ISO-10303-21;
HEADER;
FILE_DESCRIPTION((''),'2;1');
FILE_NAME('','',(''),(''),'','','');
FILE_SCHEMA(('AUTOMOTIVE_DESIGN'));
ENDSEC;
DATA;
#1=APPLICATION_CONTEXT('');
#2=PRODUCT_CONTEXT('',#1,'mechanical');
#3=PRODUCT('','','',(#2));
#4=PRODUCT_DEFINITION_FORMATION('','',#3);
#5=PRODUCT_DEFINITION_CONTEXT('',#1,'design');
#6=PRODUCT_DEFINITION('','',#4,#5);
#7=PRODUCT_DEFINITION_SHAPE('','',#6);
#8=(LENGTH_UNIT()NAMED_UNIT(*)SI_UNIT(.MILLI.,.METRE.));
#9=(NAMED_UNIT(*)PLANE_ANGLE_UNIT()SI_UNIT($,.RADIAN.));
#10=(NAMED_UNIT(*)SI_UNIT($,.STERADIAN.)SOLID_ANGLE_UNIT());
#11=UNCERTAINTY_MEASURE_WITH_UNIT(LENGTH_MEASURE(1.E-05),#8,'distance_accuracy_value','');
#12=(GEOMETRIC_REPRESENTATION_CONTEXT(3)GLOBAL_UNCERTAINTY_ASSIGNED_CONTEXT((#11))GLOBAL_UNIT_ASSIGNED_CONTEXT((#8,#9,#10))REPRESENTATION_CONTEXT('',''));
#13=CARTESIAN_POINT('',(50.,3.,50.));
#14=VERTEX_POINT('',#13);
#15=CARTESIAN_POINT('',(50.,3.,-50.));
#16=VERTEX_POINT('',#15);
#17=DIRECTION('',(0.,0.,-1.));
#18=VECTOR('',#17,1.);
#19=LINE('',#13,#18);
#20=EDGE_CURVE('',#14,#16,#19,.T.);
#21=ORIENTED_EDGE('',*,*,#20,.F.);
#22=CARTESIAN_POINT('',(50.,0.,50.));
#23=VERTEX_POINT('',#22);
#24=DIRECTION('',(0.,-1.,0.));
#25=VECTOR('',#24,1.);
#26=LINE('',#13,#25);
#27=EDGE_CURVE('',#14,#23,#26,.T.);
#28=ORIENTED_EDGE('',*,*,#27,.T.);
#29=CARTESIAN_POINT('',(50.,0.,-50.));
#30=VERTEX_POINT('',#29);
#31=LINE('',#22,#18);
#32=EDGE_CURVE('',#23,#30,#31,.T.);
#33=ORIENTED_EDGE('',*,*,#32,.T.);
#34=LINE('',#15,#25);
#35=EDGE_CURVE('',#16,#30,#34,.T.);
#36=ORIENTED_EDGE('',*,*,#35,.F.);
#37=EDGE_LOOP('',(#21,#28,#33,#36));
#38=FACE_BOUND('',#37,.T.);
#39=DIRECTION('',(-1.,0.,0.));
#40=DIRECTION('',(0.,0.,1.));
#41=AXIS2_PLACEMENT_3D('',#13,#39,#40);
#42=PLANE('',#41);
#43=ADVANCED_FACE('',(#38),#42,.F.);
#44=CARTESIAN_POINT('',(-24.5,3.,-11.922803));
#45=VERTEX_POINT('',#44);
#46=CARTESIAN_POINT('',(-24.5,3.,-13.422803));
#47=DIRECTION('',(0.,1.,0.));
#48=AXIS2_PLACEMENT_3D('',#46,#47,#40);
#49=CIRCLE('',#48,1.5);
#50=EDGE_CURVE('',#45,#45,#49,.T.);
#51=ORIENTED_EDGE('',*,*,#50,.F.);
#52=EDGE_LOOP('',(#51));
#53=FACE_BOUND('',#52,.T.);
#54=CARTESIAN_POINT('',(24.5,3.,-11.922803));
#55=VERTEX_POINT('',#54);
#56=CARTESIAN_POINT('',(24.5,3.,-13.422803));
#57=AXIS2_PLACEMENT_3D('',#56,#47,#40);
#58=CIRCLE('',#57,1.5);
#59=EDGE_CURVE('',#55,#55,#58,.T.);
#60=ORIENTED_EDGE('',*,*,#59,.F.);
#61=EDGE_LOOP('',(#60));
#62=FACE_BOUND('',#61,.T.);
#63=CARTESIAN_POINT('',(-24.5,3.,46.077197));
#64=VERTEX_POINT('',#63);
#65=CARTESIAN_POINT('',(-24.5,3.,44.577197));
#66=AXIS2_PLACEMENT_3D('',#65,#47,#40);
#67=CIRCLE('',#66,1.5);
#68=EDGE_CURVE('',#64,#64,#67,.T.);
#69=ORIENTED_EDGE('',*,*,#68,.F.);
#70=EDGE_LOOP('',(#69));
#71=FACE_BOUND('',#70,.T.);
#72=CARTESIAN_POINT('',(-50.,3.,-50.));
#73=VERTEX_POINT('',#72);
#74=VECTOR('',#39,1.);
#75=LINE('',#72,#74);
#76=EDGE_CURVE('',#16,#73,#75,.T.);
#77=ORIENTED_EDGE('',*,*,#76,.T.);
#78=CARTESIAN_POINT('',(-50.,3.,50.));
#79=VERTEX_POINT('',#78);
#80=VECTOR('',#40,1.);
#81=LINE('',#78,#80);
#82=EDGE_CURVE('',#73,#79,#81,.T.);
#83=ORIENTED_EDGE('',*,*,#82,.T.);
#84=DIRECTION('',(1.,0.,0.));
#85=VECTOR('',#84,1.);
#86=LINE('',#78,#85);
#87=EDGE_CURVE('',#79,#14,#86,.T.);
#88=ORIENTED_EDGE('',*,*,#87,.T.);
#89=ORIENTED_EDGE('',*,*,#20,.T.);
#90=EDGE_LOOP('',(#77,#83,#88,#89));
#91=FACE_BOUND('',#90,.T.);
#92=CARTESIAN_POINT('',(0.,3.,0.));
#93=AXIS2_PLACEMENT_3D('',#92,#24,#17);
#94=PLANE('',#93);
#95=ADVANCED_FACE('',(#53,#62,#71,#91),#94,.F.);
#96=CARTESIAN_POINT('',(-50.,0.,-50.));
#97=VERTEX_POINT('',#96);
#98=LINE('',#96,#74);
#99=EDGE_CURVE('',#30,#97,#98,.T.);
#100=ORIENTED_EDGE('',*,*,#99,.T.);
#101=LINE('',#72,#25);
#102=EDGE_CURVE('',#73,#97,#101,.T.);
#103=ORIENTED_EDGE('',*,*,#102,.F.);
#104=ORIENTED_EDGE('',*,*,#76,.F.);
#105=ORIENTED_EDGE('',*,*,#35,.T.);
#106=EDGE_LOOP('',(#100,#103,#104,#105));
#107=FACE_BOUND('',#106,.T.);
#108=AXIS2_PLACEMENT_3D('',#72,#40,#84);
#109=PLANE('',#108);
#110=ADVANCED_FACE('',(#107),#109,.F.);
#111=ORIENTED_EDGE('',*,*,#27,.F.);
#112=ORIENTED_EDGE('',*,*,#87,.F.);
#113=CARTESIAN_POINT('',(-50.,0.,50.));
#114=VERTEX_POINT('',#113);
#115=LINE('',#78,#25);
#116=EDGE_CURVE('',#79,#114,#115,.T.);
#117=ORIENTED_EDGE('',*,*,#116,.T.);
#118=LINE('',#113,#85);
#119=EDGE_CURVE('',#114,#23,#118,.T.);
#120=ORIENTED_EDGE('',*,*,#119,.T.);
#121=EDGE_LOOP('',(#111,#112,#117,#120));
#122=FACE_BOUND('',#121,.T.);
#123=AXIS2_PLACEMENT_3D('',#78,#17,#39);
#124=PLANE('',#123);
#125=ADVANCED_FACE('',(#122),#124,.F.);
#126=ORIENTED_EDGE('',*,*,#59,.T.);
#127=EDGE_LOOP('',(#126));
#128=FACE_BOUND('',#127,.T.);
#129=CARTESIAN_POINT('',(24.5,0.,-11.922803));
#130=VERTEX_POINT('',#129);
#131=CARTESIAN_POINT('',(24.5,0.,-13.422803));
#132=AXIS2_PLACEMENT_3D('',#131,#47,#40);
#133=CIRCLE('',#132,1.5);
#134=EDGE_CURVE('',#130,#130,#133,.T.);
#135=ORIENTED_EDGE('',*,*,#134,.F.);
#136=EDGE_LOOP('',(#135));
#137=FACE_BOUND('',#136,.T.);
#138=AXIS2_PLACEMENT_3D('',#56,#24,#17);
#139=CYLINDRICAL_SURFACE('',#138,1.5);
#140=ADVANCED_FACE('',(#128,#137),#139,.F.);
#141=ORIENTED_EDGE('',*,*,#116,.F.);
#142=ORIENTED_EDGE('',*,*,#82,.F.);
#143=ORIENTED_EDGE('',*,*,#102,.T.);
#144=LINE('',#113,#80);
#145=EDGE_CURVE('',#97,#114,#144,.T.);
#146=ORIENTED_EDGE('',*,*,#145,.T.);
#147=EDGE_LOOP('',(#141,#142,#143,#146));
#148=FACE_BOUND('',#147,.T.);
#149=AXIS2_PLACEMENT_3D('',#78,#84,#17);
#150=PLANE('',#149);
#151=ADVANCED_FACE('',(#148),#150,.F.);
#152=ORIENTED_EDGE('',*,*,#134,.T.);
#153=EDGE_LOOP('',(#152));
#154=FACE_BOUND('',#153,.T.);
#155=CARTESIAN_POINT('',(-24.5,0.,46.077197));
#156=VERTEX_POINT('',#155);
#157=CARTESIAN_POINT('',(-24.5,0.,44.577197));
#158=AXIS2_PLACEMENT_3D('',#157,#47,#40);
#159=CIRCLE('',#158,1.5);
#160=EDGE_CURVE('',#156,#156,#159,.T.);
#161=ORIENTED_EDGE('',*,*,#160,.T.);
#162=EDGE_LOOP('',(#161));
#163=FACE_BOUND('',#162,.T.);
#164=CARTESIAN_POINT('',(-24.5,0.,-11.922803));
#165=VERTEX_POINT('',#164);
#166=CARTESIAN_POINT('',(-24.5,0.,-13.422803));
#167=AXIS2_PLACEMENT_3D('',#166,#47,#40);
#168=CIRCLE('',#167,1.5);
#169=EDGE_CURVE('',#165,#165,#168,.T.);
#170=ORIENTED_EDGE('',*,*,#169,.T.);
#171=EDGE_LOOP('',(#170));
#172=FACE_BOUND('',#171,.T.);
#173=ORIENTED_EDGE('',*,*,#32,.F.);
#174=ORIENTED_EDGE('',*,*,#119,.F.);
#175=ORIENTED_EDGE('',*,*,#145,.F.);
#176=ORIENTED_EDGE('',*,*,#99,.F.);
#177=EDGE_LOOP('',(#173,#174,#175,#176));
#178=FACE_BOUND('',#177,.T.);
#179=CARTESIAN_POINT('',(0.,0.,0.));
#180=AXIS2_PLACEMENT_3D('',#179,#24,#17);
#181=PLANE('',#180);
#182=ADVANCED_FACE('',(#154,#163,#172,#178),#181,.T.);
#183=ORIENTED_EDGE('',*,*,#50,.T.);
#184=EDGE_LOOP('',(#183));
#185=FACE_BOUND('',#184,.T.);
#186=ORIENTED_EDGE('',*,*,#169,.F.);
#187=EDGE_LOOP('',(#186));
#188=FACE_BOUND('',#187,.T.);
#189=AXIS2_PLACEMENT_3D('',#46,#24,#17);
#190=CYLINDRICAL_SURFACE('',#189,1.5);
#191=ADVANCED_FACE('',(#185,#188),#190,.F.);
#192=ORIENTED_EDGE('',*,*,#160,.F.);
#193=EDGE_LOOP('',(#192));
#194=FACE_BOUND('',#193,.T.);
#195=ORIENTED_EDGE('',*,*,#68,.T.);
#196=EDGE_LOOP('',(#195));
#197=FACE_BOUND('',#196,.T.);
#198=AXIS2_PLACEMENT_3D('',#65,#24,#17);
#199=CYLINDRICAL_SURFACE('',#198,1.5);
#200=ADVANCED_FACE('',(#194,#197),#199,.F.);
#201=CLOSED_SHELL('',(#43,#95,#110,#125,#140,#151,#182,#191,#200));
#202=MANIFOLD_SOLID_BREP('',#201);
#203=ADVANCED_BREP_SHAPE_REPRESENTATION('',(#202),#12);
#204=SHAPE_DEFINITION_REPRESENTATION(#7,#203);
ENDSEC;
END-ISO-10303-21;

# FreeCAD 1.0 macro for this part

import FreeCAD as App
import Part
import Sketcher
from FreeCAD import Vector
Q = App.Units.Quantity

doc = App.newDocument("Part")
params = doc.addObject("Spreadsheet::Sheet", "Params")
for row, (alias, value) in enumerate([
    ("sketch1_diameter", "3 mm"),
    ("sketch1_width", "100 mm"),
    ("pad1_length", "3 mm"),
], start=1):
    params.set(f"A{row}", alias)
    params.set(f"B{row}", "=" + value)
    params.setAlias(f"B{row}", alias)

body = doc.addObject("PartDesign::Body", "Body")

# Sketch on XZ plane
sketch1 = doc.addObject("Sketcher::SketchObject", "Sketch")
body.addObject(sketch1)
sketch1.AttachmentSupport = (doc.XZ_Plane, [""])
sketch1.MapMode = "FlatFace"
sketch1.addGeometry([
    Part.LineSegment(Vector(-50, -50, 0), Vector(-50, 50, 0)),  # 0
    Part.LineSegment(Vector(-50, 50, 0), Vector(50, 50, 0)),  # 1
    Part.LineSegment(Vector(50, 50, 0), Vector(50, -50, 0)),  # 2
    Part.LineSegment(Vector(50, -50, 0), Vector(-50, -50, 0)),  # 3
    Part.Circle(Vector(-24.5, 44.6, 0), Vector(0, 0, 1), 1.5),  # 4
    Part.Circle(Vector(-24.5, -13.4, 0), Vector(0, 0, 1), 1.5),  # 5
    Part.Circle(Vector(24.5, -13.4, 0), Vector(0, 0, 1), 1.5),  # 6
], False)
sketch1.addConstraint([
    Sketcher.Constraint("Coincident", 0, 2, 1, 1),
    Sketcher.Constraint("Coincident", 1, 2, 2, 1),
    Sketcher.Constraint("Coincident", 2, 2, 3, 1),
    Sketcher.Constraint("Coincident", 3, 2, 0, 1),
    Sketcher.Constraint("Vertical", 0),
    Sketcher.Constraint("Horizontal", 1),
    Sketcher.Constraint("Vertical", 2),
    Sketcher.Constraint("Horizontal", 3),
    Sketcher.Constraint("Equal", 4, 5),
    Sketcher.Constraint("Equal", 5, 6),
    Sketcher.Constraint("Symmetric", 0, 2, 2, 2, -1, 1),
    Sketcher.Constraint("Symmetric", 5, 3, 6, 3, -2),
    Sketcher.Constraint("Vertical", 4, 3, 5, 3),
    Sketcher.Constraint("Equal", 3, 0),
    Sketcher.Constraint("Diameter", 4, Q("3 mm")),
    Sketcher.Constraint("DistanceX", 1, 1, 1, 2, Q("100 mm")),
    Sketcher.Constraint("DistanceY", 5, 3, 4, 3, Q("58 mm")),
    Sketcher.Constraint("DistanceX", 5, 3, 6, 3, Q("49 mm")),
    Sketcher.Constraint("DistanceY", -1, 1, 4, 3, Q("44.577197 mm")),
])
sketch1.setExpression("Constraints[14]", "Params.sketch1_diameter")
sketch1.setExpression("Constraints[15]", "Params.sketch1_width")
pad1 = doc.addObject("PartDesign::Pad", "Pad")
body.addObject(pad1)
pad1.Profile = sketch1
pad1.setExpression("Length", "Params.pad1_length")
pad1.Reversed = True

doc.recompute()
